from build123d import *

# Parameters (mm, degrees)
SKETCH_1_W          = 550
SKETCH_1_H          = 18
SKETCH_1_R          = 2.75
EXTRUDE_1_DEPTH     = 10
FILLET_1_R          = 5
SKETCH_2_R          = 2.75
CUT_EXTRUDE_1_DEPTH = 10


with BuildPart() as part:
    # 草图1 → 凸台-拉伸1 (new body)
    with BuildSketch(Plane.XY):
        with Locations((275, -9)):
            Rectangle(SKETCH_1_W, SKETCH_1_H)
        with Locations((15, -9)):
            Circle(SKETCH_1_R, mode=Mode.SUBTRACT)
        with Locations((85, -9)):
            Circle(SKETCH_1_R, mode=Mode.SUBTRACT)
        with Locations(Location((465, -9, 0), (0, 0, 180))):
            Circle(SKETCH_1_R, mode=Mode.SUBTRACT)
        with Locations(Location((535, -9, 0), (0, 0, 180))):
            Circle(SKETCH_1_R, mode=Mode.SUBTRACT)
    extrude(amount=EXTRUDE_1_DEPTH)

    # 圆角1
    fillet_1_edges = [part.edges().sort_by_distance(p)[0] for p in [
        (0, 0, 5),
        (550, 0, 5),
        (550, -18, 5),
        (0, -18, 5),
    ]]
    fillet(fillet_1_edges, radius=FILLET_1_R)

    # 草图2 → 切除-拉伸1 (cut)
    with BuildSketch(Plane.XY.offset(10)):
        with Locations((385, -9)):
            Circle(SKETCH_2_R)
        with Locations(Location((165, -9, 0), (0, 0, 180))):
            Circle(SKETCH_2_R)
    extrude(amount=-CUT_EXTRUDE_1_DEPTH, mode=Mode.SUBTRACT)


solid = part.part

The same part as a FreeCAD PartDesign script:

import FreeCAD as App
import Part
import Sketcher
from FreeCAD import Vector
Q = App.Units.Quantity


def edges_at(feature, points):
    """Names of the edges that pass closest to the given points."""
    edges = feature.Shape.Edges
    near = lambda p: min(range(len(edges)), key=lambda i: edges[i].distToShape(Part.Vertex(*p))[0])
    return sorted({f"Edge{near(p) + 1}" for p in points})


def add_polygon(sketch, points):
    """Adds a closed chain of lines whose ends are joined by coincident constraints."""
    first, n = sketch.GeometryCount, len(points)
    for a, b in zip(points, points[1:] + points[:1]):
        sketch.addGeometry(Part.LineSegment(App.Vector(*a, 0), App.Vector(*b, 0)), False)
    for i in range(n):
        sketch.addConstraint(Sketcher.Constraint("Coincident", first + i, 2, first + (i + 1) % n, 1))

doc = App.newDocument("Part")
body = doc.addObject("PartDesign::Body", "Body")

# Sketch on XY plane
sketch1 = body.newObject("Sketcher::SketchObject", "Sketch")
sketch1.AttachmentSupport = (doc.getObject("XY_Plane"), [""])
sketch1.MapMode = "FlatFace"
add_polygon(sketch1, [(0, 0), (0, -18), (550, -18), (550, 0)])  # lines 0-3
sketch1.addGeometry(Part.Circle(Vector(15, -9, 0), Vector(0, 0, 1), 2.8), False)  # 4
sketch1.addGeometry(Part.Circle(Vector(85, -9, 0), Vector(0, 0, 1), 2.8), False)  # 5
sketch1.addGeometry(Part.Circle(Vector(465, -9, 0), Vector(0, 0, 1), 2.8), False)  # 6
sketch1.addGeometry(Part.Circle(Vector(535, -9, 0), Vector(0, 0, 1), 2.8), False)  # 7
sketch1.addConstraint([
    Sketcher.Constraint("Vertical", 0),
    Sketcher.Constraint("Horizontal", 1),
    Sketcher.Constraint("Vertical", 2),
    Sketcher.Constraint("Horizontal", 3),
    Sketcher.Constraint("Coincident", 3, 2, -1, 1),
    Sketcher.Constraint("Equal", 4, 5),
    Sketcher.Constraint("Equal", 5, 6),
    Sketcher.Constraint("Equal", 6, 7),
    Sketcher.Constraint("Horizontal", 4, 3, 5, 3),
    Sketcher.Constraint("Horizontal", 5, 3, 6, 3),
    Sketcher.Constraint("Horizontal", 6, 3, 7, 3),
    Sketcher.Constraint("Diameter", 4, Q("5.5 mm")),
    Sketcher.Constraint("DistanceX", 1, 1, 1, 2, Q("550 mm")),
    Sketcher.Constraint("DistanceY", 0, 2, 0, 1, Q("18 mm")),
    Sketcher.Constraint("DistanceX", -1, 1, 4, 3, Q("15 mm")),
    Sketcher.Constraint("DistanceY", 4, 3, -1, 1, Q("9 mm")),
    Sketcher.Constraint("DistanceX", -1, 1, 5, 3, Q("85 mm")),
    Sketcher.Constraint("DistanceX", -1, 1, 6, 3, Q("465 mm")),
    Sketcher.Constraint("DistanceX", -1, 1, 7, 3, Q("535 mm")),
])
pad1 = body.newObject("PartDesign::Pad", "Pad")
pad1.Profile = sketch1
pad1.Length = 10
doc.recompute()

fillet = body.newObject("PartDesign::Fillet", "Fillet")
fillet.Base = (pad1, edges_at(pad1, [
    (0, 0, 5),
    (550, 0, 5),
    (550, -18, 5),
    (0, -18, 5),
]))
fillet.Radius = 5

# Sketch on XY plane
sketch2 = body.newObject("Sketcher::SketchObject", "Sketch001")
sketch2.AttachmentSupport = (doc.getObject("XY_Plane"), [""])
sketch2.MapMode = "FlatFace"
sketch2.AttachmentOffset = App.Placement(Vector(0, 0, 10), App.Rotation())
sketch2.addGeometry([
    Part.Circle(Vector(385, -9, 0), Vector(0, 0, 1), 2.8),
    Part.Circle(Vector(165, -9, 0), Vector(0, 0, 1), 2.8),
], False)
sketch2.addConstraint([
    Sketcher.Constraint("Equal", 0, 1),
    Sketcher.Constraint("Horizontal", 0, 3, 1, 3),
    Sketcher.Constraint("Diameter", 0, Q("5.5 mm")),
    Sketcher.Constraint("DistanceX", -1, 1, 0, 3, Q("385 mm")),
    Sketcher.Constraint("DistanceY", 0, 3, -1, 1, Q("9 mm")),
    Sketcher.Constraint("DistanceX", -1, 1, 1, 3, Q("165 mm")),
])
pocket1 = body.newObject("PartDesign::Pocket", "Pocket")
pocket1.Profile = sketch2
pocket1.Length = 10

doc.recompute()
